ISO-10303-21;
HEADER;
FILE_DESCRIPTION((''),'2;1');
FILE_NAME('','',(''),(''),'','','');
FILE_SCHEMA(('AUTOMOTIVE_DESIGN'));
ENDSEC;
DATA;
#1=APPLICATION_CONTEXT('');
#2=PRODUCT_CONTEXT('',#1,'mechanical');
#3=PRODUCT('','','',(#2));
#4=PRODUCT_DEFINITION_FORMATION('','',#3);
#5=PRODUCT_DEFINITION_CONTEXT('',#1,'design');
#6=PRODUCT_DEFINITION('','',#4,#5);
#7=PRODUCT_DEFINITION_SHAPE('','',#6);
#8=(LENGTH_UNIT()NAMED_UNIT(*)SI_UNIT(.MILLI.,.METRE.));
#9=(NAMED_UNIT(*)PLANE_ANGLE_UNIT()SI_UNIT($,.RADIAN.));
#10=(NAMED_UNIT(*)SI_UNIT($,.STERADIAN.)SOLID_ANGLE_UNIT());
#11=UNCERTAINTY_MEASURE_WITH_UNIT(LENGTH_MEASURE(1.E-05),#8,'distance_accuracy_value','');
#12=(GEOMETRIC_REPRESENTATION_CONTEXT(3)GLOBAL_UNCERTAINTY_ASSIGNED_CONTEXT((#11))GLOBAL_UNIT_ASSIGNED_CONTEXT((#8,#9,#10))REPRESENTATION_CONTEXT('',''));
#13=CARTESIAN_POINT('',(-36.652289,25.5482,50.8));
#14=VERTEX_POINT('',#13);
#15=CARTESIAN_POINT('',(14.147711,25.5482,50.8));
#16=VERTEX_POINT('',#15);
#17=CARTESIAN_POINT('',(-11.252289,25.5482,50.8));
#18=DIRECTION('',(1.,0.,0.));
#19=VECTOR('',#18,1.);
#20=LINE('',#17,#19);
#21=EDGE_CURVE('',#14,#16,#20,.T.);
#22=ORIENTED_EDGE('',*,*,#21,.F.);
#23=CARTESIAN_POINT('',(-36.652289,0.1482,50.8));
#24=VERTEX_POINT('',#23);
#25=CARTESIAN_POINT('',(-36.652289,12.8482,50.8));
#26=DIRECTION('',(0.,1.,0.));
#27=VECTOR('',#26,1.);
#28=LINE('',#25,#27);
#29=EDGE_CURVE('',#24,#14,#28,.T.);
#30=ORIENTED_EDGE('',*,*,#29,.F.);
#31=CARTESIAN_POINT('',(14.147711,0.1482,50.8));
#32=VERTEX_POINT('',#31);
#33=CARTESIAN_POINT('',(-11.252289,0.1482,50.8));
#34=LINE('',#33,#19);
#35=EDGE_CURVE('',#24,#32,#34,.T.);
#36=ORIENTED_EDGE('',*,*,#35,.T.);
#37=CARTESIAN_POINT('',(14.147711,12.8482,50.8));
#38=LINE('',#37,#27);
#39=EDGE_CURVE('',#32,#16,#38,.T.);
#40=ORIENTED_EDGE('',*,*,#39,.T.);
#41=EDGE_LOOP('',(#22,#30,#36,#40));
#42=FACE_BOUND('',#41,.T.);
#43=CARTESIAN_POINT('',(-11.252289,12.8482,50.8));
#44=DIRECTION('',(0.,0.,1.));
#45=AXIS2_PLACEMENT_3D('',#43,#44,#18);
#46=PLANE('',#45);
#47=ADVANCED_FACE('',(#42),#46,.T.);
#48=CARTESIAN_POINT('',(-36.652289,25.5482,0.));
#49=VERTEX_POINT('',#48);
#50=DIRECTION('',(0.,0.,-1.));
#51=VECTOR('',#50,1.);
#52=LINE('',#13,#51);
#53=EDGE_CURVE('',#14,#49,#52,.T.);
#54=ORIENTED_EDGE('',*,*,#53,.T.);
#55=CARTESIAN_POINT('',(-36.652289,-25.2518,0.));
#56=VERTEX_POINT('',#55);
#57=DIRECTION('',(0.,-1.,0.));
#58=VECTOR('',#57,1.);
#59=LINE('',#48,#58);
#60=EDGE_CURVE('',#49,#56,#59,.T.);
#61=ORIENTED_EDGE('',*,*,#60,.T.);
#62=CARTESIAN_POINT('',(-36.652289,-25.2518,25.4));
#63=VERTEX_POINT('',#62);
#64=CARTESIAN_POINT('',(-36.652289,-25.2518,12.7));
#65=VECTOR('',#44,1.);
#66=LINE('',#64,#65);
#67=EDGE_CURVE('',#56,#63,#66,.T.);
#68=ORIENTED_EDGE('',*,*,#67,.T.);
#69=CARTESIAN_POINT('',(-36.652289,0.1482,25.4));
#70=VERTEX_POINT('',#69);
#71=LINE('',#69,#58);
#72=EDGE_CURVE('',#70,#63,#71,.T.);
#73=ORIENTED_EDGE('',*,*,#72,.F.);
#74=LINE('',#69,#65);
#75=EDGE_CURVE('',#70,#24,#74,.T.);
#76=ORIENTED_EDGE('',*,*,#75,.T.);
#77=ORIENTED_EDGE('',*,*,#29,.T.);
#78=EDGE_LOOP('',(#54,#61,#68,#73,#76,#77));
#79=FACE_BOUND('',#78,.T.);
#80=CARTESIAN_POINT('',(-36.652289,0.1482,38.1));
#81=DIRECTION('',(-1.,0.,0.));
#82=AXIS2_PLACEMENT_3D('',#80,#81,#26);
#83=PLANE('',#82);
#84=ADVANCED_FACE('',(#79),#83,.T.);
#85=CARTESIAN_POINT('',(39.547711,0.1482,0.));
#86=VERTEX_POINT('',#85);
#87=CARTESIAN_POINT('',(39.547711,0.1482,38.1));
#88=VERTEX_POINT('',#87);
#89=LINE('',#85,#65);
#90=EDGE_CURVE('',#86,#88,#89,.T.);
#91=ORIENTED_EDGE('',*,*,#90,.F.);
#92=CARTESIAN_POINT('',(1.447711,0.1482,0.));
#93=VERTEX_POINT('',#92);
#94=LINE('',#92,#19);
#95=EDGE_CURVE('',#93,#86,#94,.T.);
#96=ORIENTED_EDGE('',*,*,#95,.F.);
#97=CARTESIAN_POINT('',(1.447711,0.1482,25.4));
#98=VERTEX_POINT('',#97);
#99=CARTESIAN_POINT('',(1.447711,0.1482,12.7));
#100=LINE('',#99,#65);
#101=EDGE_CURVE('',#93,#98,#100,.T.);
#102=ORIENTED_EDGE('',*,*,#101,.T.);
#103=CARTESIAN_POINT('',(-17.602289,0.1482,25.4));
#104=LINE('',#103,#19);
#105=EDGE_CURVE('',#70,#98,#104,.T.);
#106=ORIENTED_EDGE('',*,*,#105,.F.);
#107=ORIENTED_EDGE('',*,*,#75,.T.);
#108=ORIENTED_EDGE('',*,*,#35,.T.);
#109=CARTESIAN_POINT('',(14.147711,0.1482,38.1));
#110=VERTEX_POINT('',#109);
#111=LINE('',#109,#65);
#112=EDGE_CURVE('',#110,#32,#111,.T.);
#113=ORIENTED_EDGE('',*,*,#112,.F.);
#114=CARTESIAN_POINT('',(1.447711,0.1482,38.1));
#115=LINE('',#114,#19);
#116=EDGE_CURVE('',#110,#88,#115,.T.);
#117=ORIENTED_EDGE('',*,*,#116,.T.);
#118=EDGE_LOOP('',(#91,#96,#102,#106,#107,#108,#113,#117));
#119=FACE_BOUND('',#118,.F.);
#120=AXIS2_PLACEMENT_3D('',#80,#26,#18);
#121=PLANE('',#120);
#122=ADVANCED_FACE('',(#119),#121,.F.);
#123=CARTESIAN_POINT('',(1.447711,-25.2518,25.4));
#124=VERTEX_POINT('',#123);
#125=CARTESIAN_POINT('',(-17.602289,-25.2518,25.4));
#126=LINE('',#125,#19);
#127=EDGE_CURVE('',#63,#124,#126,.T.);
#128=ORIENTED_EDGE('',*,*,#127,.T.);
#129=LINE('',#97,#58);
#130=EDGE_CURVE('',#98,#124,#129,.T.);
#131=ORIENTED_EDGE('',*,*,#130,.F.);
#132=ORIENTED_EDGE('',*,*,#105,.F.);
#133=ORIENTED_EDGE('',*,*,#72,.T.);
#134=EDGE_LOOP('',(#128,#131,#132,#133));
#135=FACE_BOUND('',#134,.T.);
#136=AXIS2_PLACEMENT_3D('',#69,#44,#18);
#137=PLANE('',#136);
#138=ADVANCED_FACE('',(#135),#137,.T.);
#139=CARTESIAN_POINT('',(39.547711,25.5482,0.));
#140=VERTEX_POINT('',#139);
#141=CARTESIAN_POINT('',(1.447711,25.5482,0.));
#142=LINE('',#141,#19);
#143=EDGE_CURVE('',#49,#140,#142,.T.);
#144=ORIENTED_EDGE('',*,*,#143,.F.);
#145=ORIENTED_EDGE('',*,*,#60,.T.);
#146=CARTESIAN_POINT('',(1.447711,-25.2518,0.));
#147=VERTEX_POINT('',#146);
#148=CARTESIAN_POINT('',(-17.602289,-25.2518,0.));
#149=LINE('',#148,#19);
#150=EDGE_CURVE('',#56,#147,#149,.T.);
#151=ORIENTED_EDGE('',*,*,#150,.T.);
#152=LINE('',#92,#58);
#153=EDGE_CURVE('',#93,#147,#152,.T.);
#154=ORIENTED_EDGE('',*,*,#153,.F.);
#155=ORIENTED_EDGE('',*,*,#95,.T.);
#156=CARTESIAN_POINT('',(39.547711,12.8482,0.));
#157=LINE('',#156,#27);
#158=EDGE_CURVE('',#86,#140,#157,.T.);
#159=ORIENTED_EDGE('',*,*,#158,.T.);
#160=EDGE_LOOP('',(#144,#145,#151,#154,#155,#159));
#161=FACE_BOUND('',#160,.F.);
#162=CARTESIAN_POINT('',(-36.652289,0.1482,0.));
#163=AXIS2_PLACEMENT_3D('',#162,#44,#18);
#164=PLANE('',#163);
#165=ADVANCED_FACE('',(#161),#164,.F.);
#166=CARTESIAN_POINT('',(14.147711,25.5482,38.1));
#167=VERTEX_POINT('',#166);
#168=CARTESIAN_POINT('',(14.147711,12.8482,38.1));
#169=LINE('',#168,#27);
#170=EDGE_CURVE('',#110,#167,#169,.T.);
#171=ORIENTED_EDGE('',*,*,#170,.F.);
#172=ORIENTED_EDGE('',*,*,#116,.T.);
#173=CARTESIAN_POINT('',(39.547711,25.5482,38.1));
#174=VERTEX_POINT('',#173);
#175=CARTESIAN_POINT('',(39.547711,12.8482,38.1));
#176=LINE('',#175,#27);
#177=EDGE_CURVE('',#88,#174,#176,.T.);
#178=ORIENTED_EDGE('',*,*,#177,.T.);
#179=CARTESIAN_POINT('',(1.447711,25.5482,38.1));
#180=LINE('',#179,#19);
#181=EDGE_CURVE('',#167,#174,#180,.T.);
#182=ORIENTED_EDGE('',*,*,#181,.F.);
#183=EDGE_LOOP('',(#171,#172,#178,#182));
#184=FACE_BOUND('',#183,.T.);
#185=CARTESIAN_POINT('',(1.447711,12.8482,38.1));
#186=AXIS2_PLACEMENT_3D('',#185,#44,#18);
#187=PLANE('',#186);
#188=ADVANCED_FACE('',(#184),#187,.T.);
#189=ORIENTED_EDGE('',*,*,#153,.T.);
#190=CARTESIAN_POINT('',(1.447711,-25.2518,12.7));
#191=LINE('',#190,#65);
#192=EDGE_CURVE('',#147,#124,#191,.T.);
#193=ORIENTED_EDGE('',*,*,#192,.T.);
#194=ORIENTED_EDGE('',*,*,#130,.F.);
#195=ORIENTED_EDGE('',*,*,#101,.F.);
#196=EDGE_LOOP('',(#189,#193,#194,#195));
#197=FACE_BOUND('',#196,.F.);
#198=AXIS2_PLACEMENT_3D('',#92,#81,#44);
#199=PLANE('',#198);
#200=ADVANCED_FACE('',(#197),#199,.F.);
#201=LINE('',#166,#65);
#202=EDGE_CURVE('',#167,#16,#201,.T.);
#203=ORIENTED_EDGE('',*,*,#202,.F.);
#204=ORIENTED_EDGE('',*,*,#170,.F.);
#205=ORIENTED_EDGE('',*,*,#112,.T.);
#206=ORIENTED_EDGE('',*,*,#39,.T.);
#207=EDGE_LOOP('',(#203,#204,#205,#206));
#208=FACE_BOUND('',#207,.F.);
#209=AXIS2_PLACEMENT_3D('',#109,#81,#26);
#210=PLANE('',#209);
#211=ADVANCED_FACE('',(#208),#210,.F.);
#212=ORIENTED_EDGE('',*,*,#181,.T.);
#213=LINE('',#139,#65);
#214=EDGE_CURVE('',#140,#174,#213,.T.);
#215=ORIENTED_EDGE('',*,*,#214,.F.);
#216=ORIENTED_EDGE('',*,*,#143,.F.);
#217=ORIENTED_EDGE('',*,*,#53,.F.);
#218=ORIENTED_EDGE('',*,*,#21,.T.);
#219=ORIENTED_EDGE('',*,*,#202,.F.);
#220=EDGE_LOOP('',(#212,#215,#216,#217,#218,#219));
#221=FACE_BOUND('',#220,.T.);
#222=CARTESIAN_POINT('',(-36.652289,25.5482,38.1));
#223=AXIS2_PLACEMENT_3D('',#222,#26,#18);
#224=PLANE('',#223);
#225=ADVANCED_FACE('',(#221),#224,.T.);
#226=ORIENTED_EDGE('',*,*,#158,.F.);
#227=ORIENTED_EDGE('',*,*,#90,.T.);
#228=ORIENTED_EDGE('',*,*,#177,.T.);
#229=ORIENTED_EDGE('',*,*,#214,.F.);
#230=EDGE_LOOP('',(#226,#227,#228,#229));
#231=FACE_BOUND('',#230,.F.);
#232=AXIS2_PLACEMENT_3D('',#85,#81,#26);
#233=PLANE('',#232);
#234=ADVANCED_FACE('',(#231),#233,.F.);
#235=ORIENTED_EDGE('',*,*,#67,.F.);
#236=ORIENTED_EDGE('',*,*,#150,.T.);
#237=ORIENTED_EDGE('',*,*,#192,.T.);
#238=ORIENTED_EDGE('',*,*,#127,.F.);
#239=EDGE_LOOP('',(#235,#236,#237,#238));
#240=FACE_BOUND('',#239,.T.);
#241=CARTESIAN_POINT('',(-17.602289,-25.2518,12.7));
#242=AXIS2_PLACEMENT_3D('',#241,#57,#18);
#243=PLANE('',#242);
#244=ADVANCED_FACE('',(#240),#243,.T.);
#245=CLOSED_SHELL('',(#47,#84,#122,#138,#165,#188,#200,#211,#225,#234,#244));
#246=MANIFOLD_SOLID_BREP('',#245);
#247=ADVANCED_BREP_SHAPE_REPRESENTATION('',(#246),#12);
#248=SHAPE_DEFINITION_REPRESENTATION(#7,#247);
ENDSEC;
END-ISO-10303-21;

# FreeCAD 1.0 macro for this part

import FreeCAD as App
import Part
import Sketcher
from FreeCAD import Vector
Q = App.Units.Quantity

doc = App.newDocument("Part")
body = doc.addObject("PartDesign::Body", "Body")

# Sketch on XY plane
sketch1 = body.newObject("Sketcher::SketchObject", "Sketch")
sketch1.AttachmentSupport = (doc.getObject("XY_Plane"), [""])
sketch1.MapMode = "FlatFace"
sketch1.addGeometry([
    Part.LineSegment(Vector(-37, 26, 0), Vector(-37, 0, 0)),
    Part.LineSegment(Vector(-37, 0, 0), Vector(40, 0, 0)),
    Part.LineSegment(Vector(40, 0, 0), Vector(40, 26, 0)),
    Part.LineSegment(Vector(40, 26, 0), Vector(-37, 26, 0)),
], False)
sketch1.addConstraint([
    Sketcher.Constraint("Coincident", 0, 2, 1, 1),
    Sketcher.Constraint("Coincident", 1, 2, 2, 1),
    Sketcher.Constraint("Coincident", 2, 2, 3, 1),
    Sketcher.Constraint("Coincident", 3, 2, 0, 1),
    Sketcher.Constraint("Vertical", 0),
    Sketcher.Constraint("Horizontal", 1),
    Sketcher.Constraint("Vertical", 2),
    Sketcher.Constraint("Horizontal", 3),
    Sketcher.Constraint("DistanceX", 1, 1, 1, 2, Q("3 in")),
    Sketcher.Constraint("DistanceY", 0, 2, 0, 1, Q("1 in")),
    Sketcher.Constraint("DistanceY", -1, 1, 0, 2, Q("0.1482 mm")),
    Sketcher.Constraint("DistanceX", 0, 2, -1, 1, Q("36.652289 mm")),
])
pad1 = body.newObject("PartDesign::Pad", "Pad")
pad1.Profile = sketch1
pad1.Length = Q("1.5 in")

# Sketch on XZ plane
sketch2 = body.newObject("Sketcher::SketchObject", "Sketch001")
sketch2.AttachmentSupport = (doc.getObject("XZ_Plane"), [""])
sketch2.MapMode = "FlatFace"
sketch2.AttachmentOffset = App.Placement(Vector(0, 0, -0.1482), App.Rotation())
sketch2.addGeometry([
    Part.LineSegment(Vector(-37, 25, 0), Vector(-37, 0, 0)),
    Part.LineSegment(Vector(-37, 0, 0), Vector(1, 0, 0)),
    Part.LineSegment(Vector(1, 0, 0), Vector(1, 25, 0)),
    Part.LineSegment(Vector(1, 25, 0), Vector(-37, 25, 0)),
], False)
sketch2.addConstraint([
    Sketcher.Constraint("Coincident", 0, 2, 1, 1),
    Sketcher.Constraint("Coincident", 1, 2, 2, 1),
    Sketcher.Constraint("Coincident", 2, 2, 3, 1),
    Sketcher.Constraint("Coincident", 3, 2, 0, 1),
    Sketcher.Constraint("Vertical", 0),
    Sketcher.Constraint("Horizontal", 1),
    Sketcher.Constraint("Vertical", 2),
    Sketcher.Constraint("Horizontal", 3),
    Sketcher.Constraint("PointOnObject", 0, 2, -1),
    Sketcher.Constraint("DistanceY", 0, 2, 0, 1, Q("1 in")),
    Sketcher.Constraint("DistanceX", 1, 1, 1, 2, Q("1.5 in")),
    Sketcher.Constraint("DistanceX", 0, 2, -1, 1, Q("36.652289 mm")),
])
pad2 = body.newObject("PartDesign::Pad", "Pad001")
pad2.Profile = sketch2
pad2.Length = Q("1 in")

# Sketch on XY plane
sketch3 = body.newObject("Sketcher::SketchObject", "Sketch002")
sketch3.AttachmentSupport = (doc.getObject("XY_Plane"), [""])
sketch3.MapMode = "FlatFace"
sketch3.AttachmentOffset = App.Placement(Vector(0, 0, 1.5 * 25.4), App.Rotation())
sketch3.addGeometry([
    Part.LineSegment(Vector(-37, 26, 0), Vector(-37, 0, 0)),
    Part.LineSegment(Vector(-37, 0, 0), Vector(14, 0, 0)),
    Part.LineSegment(Vector(14, 0, 0), Vector(14, 26, 0)),
    Part.LineSegment(Vector(14, 26, 0), Vector(-37, 26, 0)),
], False)
sketch3.addConstraint([
    Sketcher.Constraint("Coincident", 0, 2, 1, 1),
    Sketcher.Constraint("Coincident", 1, 2, 2, 1),
    Sketcher.Constraint("Coincident", 2, 2, 3, 1),
    Sketcher.Constraint("Coincident", 3, 2, 0, 1),
    Sketcher.Constraint("Vertical", 0),
    Sketcher.Constraint("Horizontal", 1),
    Sketcher.Constraint("Vertical", 2),
    Sketcher.Constraint("Horizontal", 3),
    Sketcher.Constraint("DistanceX", 1, 1, 1, 2, Q("2 in")),
    Sketcher.Constraint("DistanceY", 0, 2, 0, 1, Q("1 in")),
    Sketcher.Constraint("DistanceY", -1, 1, 0, 2, Q("0.1482 mm")),
    Sketcher.Constraint("DistanceX", 0, 2, -1, 1, Q("36.652289 mm")),
])
pad3 = body.newObject("PartDesign::Pad", "Pad002")
pad3.Profile = sketch3
pad3.Length = Q("0.5 in")

doc.recompute()
